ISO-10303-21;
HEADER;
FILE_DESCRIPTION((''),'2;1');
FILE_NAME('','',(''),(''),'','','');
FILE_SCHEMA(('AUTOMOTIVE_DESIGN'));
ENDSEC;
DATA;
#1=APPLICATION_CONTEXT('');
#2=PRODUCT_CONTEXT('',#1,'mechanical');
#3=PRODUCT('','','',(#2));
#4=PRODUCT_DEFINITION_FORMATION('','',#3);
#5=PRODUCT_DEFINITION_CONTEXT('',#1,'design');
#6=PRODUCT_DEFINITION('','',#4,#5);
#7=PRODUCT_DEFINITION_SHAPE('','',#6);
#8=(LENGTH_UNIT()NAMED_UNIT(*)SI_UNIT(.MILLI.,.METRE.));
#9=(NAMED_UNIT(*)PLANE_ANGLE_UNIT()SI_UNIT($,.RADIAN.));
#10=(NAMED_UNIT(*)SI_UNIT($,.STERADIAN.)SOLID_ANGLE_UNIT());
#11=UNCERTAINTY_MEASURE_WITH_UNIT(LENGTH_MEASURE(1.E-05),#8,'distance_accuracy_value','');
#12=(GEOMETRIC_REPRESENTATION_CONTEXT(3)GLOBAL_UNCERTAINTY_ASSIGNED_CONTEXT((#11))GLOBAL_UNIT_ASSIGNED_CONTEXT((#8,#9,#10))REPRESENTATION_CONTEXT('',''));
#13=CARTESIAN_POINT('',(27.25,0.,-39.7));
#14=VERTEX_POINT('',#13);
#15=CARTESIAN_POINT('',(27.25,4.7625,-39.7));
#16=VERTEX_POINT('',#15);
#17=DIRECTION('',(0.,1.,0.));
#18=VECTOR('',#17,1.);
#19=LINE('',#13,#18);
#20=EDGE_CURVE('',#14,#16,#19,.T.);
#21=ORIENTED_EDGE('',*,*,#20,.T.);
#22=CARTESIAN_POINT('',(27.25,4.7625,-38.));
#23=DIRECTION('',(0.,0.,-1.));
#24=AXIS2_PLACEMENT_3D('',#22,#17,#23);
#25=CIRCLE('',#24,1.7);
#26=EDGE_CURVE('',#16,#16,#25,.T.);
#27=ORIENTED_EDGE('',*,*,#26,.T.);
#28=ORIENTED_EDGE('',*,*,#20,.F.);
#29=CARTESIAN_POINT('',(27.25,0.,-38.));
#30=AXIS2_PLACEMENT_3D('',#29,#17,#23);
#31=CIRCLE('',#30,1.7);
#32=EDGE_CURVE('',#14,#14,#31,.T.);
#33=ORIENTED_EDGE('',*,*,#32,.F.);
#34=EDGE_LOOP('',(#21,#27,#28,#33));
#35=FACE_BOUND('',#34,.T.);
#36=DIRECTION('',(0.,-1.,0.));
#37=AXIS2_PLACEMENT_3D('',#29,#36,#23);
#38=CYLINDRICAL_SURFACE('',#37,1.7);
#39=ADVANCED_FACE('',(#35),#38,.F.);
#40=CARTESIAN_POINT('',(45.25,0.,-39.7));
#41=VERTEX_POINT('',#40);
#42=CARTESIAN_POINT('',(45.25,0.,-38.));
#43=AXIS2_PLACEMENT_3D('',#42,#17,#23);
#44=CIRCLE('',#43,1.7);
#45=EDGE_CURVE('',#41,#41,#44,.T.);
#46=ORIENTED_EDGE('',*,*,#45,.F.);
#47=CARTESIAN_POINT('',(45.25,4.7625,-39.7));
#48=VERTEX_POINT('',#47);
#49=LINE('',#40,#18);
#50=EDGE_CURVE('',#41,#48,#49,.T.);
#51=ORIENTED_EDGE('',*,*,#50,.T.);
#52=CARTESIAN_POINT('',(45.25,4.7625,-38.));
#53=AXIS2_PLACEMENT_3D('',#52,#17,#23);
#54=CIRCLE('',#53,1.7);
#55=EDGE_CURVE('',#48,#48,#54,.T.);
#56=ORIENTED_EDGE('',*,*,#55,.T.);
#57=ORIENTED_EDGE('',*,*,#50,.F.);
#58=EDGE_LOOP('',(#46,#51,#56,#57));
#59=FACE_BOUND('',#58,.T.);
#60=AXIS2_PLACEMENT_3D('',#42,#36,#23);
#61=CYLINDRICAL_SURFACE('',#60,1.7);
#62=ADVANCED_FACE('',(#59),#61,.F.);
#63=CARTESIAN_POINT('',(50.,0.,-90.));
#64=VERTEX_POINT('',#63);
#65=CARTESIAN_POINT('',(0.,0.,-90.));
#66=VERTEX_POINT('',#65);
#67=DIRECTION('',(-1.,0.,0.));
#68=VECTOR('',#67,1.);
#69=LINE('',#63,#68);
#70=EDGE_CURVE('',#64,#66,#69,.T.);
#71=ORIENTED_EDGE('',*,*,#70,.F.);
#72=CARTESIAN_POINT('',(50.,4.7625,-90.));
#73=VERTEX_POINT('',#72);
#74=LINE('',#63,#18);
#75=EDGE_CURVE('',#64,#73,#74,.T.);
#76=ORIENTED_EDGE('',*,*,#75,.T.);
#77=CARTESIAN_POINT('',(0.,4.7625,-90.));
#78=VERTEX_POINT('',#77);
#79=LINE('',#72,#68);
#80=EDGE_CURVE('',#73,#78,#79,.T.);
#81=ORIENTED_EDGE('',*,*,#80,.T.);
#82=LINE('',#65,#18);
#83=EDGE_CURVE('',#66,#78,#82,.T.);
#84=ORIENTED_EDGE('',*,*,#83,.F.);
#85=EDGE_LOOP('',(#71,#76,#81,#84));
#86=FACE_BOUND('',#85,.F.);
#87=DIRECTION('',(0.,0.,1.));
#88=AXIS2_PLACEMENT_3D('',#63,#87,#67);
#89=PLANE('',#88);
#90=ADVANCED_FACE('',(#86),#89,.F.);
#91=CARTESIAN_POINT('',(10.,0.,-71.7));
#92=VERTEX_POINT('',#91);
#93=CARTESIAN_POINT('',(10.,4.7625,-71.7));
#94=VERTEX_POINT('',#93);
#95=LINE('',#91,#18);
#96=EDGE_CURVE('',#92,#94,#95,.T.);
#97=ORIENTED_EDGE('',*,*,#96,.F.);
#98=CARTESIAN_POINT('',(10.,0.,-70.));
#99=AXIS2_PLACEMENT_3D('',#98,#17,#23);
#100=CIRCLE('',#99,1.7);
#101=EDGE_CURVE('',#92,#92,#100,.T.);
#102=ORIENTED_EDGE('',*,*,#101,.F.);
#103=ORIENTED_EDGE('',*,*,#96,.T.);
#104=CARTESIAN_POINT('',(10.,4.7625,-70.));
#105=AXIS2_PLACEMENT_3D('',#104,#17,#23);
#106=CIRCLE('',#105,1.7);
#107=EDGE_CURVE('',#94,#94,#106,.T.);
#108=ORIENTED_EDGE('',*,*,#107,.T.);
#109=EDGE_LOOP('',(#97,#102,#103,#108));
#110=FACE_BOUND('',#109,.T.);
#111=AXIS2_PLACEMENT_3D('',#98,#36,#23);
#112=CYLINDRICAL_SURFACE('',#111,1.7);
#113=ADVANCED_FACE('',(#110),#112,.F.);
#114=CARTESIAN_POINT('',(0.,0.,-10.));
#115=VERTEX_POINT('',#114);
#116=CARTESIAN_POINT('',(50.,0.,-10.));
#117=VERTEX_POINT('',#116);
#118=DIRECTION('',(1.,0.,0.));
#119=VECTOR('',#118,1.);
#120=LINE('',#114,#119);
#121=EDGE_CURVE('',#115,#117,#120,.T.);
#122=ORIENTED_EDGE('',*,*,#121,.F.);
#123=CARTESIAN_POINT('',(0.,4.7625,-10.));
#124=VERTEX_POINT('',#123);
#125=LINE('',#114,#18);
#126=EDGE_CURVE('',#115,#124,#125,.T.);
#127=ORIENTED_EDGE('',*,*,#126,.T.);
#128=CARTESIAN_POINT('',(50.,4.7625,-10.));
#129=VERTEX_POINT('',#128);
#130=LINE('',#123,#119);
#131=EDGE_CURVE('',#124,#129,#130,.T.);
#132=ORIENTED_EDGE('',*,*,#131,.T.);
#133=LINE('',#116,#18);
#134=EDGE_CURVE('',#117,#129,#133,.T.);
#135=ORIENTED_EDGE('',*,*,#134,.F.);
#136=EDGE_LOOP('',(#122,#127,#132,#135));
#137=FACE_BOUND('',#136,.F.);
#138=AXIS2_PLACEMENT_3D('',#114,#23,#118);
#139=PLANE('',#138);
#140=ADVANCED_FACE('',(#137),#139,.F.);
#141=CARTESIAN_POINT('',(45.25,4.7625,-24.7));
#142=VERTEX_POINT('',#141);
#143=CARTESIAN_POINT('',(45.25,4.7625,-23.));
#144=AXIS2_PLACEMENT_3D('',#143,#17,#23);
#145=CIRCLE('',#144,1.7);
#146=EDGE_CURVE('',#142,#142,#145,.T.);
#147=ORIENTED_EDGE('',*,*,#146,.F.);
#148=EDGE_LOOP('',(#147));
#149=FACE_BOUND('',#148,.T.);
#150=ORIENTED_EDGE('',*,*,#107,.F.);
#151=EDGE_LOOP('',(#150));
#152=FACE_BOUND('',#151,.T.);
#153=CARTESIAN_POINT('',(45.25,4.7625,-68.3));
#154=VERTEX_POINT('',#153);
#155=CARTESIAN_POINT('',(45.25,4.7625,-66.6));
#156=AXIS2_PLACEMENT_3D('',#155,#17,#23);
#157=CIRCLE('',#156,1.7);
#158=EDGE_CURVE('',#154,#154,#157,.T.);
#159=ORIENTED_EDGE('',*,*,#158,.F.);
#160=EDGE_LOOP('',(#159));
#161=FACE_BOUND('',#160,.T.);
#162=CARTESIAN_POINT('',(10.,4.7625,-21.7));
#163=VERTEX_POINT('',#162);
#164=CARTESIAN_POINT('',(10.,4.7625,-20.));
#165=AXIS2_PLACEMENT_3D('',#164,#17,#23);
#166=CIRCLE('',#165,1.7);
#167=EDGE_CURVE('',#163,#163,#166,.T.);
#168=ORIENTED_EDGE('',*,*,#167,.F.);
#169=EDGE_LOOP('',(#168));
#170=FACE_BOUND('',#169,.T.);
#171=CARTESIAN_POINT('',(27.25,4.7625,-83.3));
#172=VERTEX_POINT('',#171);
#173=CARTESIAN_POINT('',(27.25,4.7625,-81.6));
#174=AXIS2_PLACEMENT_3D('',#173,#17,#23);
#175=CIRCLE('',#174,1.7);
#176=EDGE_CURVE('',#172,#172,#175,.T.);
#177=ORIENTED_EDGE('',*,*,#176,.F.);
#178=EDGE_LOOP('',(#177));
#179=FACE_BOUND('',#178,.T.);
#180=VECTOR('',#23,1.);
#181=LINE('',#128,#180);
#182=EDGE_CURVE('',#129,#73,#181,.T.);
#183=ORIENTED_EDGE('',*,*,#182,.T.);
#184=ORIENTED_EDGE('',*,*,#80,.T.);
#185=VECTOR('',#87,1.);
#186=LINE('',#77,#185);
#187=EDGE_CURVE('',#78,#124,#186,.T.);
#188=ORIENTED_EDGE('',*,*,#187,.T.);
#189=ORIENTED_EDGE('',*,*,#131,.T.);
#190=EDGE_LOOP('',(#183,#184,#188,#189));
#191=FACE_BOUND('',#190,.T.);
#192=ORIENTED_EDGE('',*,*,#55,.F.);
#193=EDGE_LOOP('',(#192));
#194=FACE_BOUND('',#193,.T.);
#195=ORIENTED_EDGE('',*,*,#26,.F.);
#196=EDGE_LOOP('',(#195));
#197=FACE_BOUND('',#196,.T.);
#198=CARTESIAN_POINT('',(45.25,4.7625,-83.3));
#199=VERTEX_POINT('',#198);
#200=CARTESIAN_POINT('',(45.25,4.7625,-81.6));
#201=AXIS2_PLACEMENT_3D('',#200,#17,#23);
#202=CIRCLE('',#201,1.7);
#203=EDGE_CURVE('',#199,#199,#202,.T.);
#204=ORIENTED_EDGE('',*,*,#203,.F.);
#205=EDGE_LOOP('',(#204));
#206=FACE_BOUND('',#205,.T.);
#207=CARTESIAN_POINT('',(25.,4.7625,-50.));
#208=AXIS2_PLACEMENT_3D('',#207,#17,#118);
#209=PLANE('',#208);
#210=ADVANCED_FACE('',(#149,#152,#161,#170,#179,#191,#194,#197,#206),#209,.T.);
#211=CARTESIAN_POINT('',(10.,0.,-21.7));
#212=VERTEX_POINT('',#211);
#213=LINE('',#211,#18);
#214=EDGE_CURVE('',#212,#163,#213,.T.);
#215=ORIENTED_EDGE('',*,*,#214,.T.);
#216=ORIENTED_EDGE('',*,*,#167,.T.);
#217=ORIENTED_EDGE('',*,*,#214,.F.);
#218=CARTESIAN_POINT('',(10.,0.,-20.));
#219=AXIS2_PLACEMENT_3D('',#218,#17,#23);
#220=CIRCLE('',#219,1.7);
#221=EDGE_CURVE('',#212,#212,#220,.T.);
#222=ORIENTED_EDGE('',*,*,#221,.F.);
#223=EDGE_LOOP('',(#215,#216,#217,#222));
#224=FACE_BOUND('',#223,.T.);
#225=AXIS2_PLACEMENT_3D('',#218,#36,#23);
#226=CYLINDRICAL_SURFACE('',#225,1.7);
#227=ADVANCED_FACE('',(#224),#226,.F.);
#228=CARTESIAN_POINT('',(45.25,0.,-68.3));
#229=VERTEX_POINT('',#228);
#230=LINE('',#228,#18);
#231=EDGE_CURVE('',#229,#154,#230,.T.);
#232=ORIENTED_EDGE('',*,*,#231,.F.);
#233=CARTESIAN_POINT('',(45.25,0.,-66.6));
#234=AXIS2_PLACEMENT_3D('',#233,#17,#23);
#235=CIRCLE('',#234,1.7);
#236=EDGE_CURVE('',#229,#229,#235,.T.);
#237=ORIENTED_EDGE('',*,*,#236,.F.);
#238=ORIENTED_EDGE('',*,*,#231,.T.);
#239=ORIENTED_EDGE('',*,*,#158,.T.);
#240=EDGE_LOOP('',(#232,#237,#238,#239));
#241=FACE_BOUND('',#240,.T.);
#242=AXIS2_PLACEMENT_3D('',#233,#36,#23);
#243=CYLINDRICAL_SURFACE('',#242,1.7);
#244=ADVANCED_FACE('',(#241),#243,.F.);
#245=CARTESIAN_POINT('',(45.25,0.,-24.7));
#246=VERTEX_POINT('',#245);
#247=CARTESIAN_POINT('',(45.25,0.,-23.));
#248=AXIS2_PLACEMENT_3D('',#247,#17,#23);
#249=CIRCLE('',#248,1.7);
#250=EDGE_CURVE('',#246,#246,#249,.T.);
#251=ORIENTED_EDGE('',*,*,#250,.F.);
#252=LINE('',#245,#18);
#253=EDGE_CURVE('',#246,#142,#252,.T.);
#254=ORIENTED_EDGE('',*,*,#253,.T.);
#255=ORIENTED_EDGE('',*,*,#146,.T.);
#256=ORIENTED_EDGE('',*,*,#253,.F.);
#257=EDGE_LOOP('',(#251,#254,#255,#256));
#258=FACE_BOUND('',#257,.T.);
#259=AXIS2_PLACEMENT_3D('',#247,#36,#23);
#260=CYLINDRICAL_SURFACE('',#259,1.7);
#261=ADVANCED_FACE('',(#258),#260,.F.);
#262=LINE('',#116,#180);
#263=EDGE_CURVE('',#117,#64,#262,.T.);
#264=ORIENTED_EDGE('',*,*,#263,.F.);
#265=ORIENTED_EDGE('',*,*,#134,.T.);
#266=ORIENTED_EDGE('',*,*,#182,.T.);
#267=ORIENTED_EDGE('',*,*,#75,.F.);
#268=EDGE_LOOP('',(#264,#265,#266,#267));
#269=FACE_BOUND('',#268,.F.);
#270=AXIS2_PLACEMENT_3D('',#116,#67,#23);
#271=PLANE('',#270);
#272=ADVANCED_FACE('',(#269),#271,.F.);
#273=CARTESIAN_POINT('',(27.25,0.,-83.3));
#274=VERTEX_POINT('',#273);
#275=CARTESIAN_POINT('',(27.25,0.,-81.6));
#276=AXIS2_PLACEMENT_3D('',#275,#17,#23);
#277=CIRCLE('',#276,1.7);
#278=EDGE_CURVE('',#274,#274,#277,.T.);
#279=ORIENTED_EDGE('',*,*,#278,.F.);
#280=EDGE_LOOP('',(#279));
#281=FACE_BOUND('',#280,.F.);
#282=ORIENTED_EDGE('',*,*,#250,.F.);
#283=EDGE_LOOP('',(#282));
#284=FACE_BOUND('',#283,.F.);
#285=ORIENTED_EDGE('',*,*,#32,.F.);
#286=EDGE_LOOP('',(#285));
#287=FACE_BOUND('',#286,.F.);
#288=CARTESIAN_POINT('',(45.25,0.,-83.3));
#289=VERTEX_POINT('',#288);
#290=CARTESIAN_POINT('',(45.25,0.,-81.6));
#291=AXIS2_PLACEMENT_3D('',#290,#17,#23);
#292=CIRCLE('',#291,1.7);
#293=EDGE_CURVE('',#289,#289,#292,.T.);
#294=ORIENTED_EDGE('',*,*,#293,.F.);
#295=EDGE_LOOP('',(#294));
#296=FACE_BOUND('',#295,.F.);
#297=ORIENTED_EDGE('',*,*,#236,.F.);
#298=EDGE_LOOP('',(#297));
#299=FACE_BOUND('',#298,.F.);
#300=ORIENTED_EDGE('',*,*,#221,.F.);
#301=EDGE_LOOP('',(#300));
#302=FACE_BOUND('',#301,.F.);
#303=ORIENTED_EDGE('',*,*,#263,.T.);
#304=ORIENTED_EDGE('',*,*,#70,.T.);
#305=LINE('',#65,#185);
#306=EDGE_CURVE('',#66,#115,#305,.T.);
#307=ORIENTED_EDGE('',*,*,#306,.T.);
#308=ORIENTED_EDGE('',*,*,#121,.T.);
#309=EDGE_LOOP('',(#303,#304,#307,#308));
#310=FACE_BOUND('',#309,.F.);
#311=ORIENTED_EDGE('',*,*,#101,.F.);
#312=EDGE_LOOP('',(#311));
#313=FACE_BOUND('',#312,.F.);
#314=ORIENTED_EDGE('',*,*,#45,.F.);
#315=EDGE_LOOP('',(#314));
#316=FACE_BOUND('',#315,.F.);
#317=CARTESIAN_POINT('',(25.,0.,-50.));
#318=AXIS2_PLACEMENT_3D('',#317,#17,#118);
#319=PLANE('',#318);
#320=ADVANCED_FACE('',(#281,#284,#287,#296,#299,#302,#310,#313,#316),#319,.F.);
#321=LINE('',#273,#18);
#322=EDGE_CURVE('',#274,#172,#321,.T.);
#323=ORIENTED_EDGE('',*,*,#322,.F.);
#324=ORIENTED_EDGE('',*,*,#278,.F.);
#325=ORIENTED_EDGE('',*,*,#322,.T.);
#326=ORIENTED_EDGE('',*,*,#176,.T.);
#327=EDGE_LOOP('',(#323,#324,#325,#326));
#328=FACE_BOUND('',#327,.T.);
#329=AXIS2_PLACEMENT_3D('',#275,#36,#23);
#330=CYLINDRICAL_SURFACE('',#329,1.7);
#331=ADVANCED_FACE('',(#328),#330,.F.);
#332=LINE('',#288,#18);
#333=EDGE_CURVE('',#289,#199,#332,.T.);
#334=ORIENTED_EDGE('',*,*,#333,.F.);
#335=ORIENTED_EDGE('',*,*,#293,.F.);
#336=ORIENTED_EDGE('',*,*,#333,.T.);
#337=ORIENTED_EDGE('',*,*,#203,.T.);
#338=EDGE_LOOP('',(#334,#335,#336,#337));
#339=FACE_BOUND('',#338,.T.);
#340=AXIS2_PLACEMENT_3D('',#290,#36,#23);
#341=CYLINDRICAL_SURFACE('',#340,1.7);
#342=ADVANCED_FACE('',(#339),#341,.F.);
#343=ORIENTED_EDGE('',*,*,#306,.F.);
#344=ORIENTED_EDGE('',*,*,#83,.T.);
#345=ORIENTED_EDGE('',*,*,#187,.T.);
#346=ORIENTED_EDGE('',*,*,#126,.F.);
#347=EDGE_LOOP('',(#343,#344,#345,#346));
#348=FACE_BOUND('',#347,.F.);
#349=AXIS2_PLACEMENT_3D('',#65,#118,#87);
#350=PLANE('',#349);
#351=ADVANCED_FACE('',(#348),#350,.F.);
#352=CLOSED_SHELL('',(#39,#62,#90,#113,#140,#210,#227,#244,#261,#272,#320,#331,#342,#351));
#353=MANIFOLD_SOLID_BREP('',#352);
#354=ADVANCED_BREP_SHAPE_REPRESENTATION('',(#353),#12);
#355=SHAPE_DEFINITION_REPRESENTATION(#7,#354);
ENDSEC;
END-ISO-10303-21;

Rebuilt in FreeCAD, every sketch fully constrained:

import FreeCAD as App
import Part
import Sketcher

V = App.Vector
Q = App.Units.Quantity

doc = App.newDocument("Part")
body = doc.addObject("PartDesign::Body", "Body")

sketch1 = body.newObject("Sketcher::SketchObject", "Sketch")
sketch1.AttachmentSupport = (doc.getObject("XZ_Plane"), [""])
sketch1.MapMode = "FlatFace"
sketch1.addGeometry(Part.LineSegment(V(0, -90, 0), V(0, -10, 0)), False)
sketch1.addGeometry(Part.LineSegment(V(0, -10, 0), V(50, -10, 0)), False)
sketch1.addGeometry(Part.LineSegment(V(50, -10, 0), V(50, -90, 0)), False)
sketch1.addGeometry(Part.LineSegment(V(50, -90, 0), V(0, -90, 0)), False)
sketch1.addGeometry(Part.Circle(V(10, -20, 0), V(0, 0, 1), 1.7), False)
sketch1.addGeometry(Part.Circle(V(27.2, -38, 0), V(0, 0, 1), 1.7), False)
sketch1.addGeometry(Part.Circle(V(45.2, -23, 0), V(0, 0, 1), 1.7), False)
sketch1.addGeometry(Part.Circle(V(45.2, -38, 0), V(0, 0, 1), 1.7), False)
sketch1.addGeometry(Part.Circle(V(10, -70, 0), V(0, 0, 1), 1.7), False)
sketch1.addGeometry(Part.Circle(V(27.2, -81.6, 0), V(0, 0, 1), 1.7), False)
sketch1.addGeometry(Part.Circle(V(45.2, -66.6, 0), V(0, 0, 1), 1.7), False)
sketch1.addGeometry(Part.Circle(V(45.2, -81.6, 0), V(0, 0, 1), 1.7), False)
sketch1.addConstraint(Sketcher.Constraint("Coincident", 0, 2, 1, 1))
sketch1.addConstraint(Sketcher.Constraint("Coincident", 1, 2, 2, 1))
sketch1.addConstraint(Sketcher.Constraint("Coincident", 2, 2, 3, 1))
sketch1.addConstraint(Sketcher.Constraint("Coincident", 3, 2, 0, 1))
sketch1.addConstraint(Sketcher.Constraint("Vertical", 0))
sketch1.addConstraint(Sketcher.Constraint("Horizontal", 1))
sketch1.addConstraint(Sketcher.Constraint("Vertical", 2))
sketch1.addConstraint(Sketcher.Constraint("Horizontal", 3))
sketch1.addConstraint(Sketcher.Constraint("Equal", 4, 5))
sketch1.addConstraint(Sketcher.Constraint("Equal", 5, 6))
sketch1.addConstraint(Sketcher.Constraint("Equal", 6, 7))
sketch1.addConstraint(Sketcher.Constraint("Equal", 7, 8))
sketch1.addConstraint(Sketcher.Constraint("Equal", 8, 9))
sketch1.addConstraint(Sketcher.Constraint("Equal", 9, 10))
sketch1.addConstraint(Sketcher.Constraint("Equal", 10, 11))
sketch1.addConstraint(Sketcher.Constraint("PointOnObject", 0, 2, -2))
sketch1.addConstraint(Sketcher.Constraint("Horizontal", 5, 3, 7, 3))
sketch1.addConstraint(Sketcher.Constraint("Horizontal", 9, 3, 11, 3))
sketch1.addConstraint(Sketcher.Constraint("Vertical", 6, 3, 7, 3))
sketch1.addConstraint(Sketcher.Constraint("Vertical", 4, 3, 8, 3))
sketch1.addConstraint(Sketcher.Constraint("Vertical", 5, 3, 9, 3))
sketch1.addConstraint(Sketcher.Constraint("Vertical", 7, 3, 10, 3))
sketch1.addConstraint(Sketcher.Constraint("Vertical", 10, 3, 11, 3))
sketch1.addConstraint(Sketcher.Constraint("Diameter", 4, Q("3.4 mm")))
sketch1.addConstraint(Sketcher.Constraint("DistanceX", 1, 1, 1, 2, Q("50 mm")))
sketch1.addConstraint(Sketcher.Constraint("DistanceY", 0, 1, 0, 2, Q("80 mm")))
sketch1.addConstraint(Sketcher.Constraint("DistanceX", -1, 1, 4, 3, Q("10 mm")))
sketch1.addConstraint(Sketcher.Constraint("DistanceY", 4, 3, -1, 1, Q("20 mm")))
sketch1.addConstraint(Sketcher.Constraint("DistanceY", 5, 3, -1, 1, Q("38 mm")))
sketch1.addConstraint(Sketcher.Constraint("DistanceY", 6, 3, -1, 1, Q("23 mm")))
sketch1.addConstraint(Sketcher.Constraint("DistanceY", 8, 3, -1, 1, Q("70 mm")))
sketch1.addConstraint(Sketcher.Constraint("DistanceY", 0, 2, -1, 1, Q("10 mm")))
sketch1.addConstraint(Sketcher.Constraint("DistanceX", 5, 3, 6, 3, Q("18 mm")))
sketch1.addConstraint(Sketcher.Constraint("DistanceY", 9, 3, 10, 3, Q("15 mm")))
sketch1.addConstraint(Sketcher.Constraint("DistanceY", 9, 3, -1, 1, Q("81.6 mm")))
sketch1.addConstraint(Sketcher.Constraint("DistanceX", -1, 1, 5, 3, Q("27.25 mm")))
pad1 = body.newObject("PartDesign::Pad", "Pad")
pad1.Profile = sketch1
pad1.Length = 4.7625
pad1.Reversed = True

doc.recompute()
